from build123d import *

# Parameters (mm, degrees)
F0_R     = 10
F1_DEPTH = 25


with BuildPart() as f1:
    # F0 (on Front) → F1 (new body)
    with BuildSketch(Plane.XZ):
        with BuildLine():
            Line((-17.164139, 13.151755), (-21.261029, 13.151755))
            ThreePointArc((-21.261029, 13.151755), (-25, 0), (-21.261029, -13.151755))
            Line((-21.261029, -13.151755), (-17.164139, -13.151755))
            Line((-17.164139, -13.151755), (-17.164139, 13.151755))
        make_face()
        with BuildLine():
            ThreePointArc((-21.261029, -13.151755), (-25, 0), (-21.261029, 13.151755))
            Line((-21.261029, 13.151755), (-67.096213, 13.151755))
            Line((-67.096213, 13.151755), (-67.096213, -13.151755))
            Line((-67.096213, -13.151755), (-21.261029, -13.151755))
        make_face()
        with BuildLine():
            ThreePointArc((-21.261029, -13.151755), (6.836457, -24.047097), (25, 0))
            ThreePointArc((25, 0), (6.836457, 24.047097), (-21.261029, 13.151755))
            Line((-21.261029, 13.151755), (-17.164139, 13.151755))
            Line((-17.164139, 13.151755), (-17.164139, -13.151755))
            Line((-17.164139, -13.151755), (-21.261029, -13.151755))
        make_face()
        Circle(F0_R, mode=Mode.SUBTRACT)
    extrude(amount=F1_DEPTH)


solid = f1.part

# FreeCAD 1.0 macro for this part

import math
import FreeCAD as App
import Part
import Sketcher
from FreeCAD import Vector

doc = App.newDocument("Part")
params = doc.addObject("Spreadsheet::Sheet", "Params")
for row, (alias, value) in enumerate([
    ("sketch1_diameter", "20 mm"),
    ("sketch1_radius", "25 mm"),
    ("pad1_length", "25 mm"),
], start=1):
    params.set(f"A{row}", alias)
    params.set(f"B{row}", "=" + value)
    params.setAlias(f"B{row}", alias)

body = doc.addObject("PartDesign::Body", "Body")

# Sketch on XZ plane
sketch1 = body.newObject("Sketcher::SketchObject", "Sketch")
sketch1.AttachmentSupport = (doc.getObject("XZ_Plane"), [""])
sketch1.MapMode = "FlatFace"
sketch1.addGeometry(Part.LineSegment(Vector(-21.261029, 13.151755, 0), Vector(-67.096213, 13.151755, 0)), False)
sketch1.addGeometry(Part.LineSegment(Vector(-67.096213, 13.151755, 0), Vector(-67.096213, -13.151755, 0)), False)
sketch1.addGeometry(Part.LineSegment(Vector(-67.096213, -13.151755, 0), Vector(-21.261029, -13.151755, 0)), False)
sketch1.addGeometry(Part.ArcOfCircle(Part.Circle(Vector(0, 0, 0), Vector(0, 0, 1), 25), math.radians(-148.259684), math.radians(0.000001)), False)
sketch1.addGeometry(Part.ArcOfCircle(Part.Circle(Vector(0, 0, 0), Vector(0, 0, 1), 25), math.radians(-0.000001), math.radians(148.259684)), False)
sketch1.addGeometry(Part.Circle(Vector(0, 0, 0), Vector(0, 0, 1), 10), False)
sketch1.addConstraint(Sketcher.Constraint("Coincident", 0, 2, 1, 1))
sketch1.addConstraint(Sketcher.Constraint("Coincident", 1, 2, 2, 1))
sketch1.addConstraint(Sketcher.Constraint("Coincident", 2, 2, 3, 1))
sketch1.addConstraint(Sketcher.Constraint("Tangent", 3, 2, 4, 1))
sketch1.addConstraint(Sketcher.Constraint("Coincident", 4, 2, 0, 1))
sketch1.addConstraint(Sketcher.Constraint("Horizontal", 0))
sketch1.addConstraint(Sketcher.Constraint("Vertical", 1))
sketch1.addConstraint(Sketcher.Constraint("Horizontal", 2))
sketch1.addConstraint(Sketcher.Constraint("Coincident", 3, 3, -1, 1))
sketch1.addConstraint(Sketcher.Constraint("Coincident", 5, 3, -1, 1))
sketch1.addConstraint(Sketcher.Constraint("Equal", 3, 4))
sketch1.addConstraint(Sketcher.Constraint("PointOnObject", 3, 2, -1))
sketch1.addConstraint(Sketcher.Constraint("Vertical", 2, 2, 4, 2))
sketch1.addConstraint(Sketcher.Constraint("Diameter", 5, 20.0))
sketch1.addConstraint(Sketcher.Constraint("Radius", 3, 25.0))
sketch1.addConstraint(Sketcher.Constraint("DistanceY", 1, 2, 1, 1, 26.30351))
sketch1.addConstraint(Sketcher.Constraint("DistanceX", 0, 2, 0, 1, 45.835184))
sketch1.setExpression("Constraints[13]", "Params.sketch1_diameter")
sketch1.setExpression("Constraints[14]", "Params.sketch1_radius")
pad1 = body.newObject("PartDesign::Pad", "Pad")
pad1.Profile = sketch1
pad1.setExpression("Length", "Params.pad1_length")

doc.recompute()
